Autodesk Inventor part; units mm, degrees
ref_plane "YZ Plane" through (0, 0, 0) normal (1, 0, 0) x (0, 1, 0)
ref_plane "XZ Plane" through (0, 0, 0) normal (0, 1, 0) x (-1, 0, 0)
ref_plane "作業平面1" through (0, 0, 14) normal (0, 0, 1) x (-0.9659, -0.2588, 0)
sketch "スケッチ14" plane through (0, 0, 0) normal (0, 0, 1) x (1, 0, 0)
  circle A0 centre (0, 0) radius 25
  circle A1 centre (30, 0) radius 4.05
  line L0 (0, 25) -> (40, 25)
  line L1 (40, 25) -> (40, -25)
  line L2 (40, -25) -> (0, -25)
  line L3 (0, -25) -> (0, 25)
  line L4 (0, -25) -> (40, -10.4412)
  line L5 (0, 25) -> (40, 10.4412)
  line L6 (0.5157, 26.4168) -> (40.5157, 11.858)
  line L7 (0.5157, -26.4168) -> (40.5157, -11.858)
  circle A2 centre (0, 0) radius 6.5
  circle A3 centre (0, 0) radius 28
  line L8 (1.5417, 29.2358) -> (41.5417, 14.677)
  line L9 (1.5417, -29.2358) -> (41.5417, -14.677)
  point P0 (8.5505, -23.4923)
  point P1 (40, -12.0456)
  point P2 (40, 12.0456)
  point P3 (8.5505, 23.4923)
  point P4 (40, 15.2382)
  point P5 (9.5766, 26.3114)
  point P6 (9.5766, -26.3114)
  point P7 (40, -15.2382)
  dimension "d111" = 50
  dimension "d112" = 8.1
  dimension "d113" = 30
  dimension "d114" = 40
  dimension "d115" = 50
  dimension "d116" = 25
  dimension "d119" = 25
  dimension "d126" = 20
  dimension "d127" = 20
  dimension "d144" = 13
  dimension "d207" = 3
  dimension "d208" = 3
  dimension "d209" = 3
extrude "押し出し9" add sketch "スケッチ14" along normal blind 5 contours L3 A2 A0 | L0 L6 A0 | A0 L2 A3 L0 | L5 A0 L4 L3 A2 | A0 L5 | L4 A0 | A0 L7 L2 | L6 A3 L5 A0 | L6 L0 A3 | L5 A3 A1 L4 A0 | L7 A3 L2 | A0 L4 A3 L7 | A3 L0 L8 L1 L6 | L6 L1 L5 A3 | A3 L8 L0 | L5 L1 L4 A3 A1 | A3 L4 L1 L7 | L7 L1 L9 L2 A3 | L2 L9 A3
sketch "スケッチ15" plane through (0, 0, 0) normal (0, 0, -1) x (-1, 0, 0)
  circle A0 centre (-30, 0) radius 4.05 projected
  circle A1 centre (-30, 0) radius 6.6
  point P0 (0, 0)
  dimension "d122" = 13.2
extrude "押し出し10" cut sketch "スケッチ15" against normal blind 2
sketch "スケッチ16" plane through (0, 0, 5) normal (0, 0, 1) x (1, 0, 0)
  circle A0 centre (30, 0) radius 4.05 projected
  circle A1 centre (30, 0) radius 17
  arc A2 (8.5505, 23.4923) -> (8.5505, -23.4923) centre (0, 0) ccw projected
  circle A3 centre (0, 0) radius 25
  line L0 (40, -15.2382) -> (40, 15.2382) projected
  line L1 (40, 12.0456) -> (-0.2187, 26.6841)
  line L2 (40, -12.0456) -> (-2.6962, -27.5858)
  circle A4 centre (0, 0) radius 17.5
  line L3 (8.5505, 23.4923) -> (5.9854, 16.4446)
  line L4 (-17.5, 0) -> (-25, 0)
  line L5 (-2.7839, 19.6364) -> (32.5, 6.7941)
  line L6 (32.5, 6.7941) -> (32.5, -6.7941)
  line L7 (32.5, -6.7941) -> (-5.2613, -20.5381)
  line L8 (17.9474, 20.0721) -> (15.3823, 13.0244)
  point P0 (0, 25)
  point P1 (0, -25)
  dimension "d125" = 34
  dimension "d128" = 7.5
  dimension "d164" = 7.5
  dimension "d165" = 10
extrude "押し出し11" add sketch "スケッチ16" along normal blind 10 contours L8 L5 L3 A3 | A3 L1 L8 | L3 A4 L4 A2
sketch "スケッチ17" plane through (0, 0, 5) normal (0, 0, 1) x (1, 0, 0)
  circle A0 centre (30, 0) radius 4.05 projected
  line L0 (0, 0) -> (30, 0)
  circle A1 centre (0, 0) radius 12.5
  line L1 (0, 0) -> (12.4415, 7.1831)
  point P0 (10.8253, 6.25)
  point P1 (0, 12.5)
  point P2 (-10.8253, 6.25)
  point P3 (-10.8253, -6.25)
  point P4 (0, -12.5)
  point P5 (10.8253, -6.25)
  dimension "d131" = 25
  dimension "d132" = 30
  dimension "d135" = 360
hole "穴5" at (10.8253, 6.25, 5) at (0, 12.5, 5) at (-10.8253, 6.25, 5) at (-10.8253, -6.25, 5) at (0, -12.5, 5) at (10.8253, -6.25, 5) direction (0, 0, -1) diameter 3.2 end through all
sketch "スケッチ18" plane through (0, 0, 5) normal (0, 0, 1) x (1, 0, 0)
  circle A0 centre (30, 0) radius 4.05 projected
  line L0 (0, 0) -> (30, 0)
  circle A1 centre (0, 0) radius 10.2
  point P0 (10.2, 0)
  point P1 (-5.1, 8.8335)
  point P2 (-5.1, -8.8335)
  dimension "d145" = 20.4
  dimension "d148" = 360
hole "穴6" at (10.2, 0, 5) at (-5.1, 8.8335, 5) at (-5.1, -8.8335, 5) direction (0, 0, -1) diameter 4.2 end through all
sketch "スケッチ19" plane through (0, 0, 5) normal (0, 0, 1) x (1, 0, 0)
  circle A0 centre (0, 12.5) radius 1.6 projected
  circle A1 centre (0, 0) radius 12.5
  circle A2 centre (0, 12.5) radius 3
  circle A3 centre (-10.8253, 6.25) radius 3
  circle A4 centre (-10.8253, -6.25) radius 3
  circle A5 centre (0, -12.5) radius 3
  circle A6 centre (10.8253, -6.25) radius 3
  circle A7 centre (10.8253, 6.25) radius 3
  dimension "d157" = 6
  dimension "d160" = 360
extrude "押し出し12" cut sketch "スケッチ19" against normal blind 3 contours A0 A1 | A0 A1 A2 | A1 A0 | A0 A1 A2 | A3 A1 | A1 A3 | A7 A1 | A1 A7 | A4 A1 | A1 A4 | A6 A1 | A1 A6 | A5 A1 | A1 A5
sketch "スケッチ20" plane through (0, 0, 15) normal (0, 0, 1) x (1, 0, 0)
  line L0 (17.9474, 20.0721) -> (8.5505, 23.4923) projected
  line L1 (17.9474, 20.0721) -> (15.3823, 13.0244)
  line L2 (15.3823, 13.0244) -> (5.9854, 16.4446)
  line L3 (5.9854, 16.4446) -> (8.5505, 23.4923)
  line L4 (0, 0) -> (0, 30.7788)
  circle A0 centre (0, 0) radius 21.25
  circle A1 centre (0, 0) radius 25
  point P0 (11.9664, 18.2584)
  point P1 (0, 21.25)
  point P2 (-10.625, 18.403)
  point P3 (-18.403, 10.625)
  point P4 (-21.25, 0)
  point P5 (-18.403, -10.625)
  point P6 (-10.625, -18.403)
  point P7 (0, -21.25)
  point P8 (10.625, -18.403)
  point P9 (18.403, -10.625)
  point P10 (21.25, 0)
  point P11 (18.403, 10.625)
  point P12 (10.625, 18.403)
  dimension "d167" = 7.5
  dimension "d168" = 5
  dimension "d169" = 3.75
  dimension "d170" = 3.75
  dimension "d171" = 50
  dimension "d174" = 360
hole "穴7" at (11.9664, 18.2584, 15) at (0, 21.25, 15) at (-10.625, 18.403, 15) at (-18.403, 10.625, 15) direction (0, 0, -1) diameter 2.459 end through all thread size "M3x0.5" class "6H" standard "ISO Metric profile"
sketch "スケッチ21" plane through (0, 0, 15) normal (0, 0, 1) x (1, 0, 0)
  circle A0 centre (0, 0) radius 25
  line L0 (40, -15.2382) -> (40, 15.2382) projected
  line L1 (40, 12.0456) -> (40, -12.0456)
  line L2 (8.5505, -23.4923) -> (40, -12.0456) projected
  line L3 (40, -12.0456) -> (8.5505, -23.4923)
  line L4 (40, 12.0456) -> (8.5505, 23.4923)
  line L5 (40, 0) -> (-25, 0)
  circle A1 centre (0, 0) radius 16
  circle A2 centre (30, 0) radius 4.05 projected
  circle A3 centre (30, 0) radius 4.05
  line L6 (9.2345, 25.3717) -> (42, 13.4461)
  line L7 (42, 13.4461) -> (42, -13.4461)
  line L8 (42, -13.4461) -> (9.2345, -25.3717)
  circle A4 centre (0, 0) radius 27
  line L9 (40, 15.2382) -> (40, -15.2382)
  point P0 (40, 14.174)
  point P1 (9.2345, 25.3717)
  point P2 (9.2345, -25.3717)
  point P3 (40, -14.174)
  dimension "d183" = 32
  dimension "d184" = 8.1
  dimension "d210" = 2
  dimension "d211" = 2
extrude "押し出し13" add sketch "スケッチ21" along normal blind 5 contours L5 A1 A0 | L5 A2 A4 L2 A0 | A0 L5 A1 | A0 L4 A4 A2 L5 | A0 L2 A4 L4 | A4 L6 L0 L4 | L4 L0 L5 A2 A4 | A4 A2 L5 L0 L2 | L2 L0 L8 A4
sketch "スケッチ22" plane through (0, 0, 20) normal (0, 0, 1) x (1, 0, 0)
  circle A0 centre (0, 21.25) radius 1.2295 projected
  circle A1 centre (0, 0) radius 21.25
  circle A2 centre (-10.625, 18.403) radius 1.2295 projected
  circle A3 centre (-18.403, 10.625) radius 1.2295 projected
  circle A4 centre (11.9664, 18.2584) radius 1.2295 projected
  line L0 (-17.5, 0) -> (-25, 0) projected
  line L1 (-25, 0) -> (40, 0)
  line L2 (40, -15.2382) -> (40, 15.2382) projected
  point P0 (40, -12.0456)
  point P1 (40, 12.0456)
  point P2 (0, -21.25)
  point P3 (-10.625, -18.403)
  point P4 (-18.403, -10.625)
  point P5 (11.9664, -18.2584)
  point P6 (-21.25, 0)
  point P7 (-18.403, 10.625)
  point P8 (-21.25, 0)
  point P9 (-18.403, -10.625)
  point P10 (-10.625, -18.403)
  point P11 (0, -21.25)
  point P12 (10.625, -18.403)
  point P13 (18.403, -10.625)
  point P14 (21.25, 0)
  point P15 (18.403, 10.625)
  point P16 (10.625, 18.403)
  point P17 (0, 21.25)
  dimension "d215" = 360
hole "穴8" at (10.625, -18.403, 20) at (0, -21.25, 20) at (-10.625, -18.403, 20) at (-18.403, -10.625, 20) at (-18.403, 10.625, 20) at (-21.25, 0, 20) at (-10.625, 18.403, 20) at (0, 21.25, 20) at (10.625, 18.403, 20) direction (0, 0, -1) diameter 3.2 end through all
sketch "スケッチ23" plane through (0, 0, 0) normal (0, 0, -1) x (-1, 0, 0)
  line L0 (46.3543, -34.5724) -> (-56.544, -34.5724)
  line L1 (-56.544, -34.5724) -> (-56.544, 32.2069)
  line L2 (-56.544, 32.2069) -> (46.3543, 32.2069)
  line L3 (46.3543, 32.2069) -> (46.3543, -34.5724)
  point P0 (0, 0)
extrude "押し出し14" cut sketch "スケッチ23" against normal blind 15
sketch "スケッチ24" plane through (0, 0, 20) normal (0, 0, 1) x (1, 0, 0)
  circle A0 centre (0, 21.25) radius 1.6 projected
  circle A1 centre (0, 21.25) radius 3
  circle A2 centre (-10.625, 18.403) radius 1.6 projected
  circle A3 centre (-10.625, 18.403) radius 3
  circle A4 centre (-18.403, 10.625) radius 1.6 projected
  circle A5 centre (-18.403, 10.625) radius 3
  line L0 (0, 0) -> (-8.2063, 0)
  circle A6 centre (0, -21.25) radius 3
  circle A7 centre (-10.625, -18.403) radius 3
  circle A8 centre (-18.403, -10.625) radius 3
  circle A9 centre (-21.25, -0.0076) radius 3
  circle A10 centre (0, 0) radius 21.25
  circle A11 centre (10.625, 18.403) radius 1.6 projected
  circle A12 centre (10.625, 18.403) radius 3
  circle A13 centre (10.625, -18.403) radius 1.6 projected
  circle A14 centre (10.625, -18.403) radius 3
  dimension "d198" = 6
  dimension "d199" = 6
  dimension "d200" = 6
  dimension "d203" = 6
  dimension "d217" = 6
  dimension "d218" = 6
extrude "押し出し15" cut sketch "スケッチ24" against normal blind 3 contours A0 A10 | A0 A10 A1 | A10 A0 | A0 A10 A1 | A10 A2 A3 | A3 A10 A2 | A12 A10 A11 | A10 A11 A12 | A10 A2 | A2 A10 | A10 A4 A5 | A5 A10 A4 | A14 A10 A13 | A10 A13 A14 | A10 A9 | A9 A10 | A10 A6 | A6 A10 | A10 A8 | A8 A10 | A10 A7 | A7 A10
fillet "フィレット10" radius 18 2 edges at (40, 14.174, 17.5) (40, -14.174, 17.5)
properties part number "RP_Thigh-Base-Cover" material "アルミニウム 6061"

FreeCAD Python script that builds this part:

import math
import FreeCAD as App
import Part
import Sketcher
from FreeCAD import Vector
Q = App.Units.Quantity


def edges_at(feature, points):
    """Names of the edges that pass closest to the given points."""
    edges = feature.Shape.Edges
    near = lambda p: min(range(len(edges)), key=lambda i: edges[i].distToShape(Part.Vertex(*p))[0])
    return sorted({f"Edge{near(p) + 1}" for p in points})


def add_polygon(sketch, points):
    """Adds a closed chain of lines whose ends are joined by coincident constraints."""
    first, n = sketch.GeometryCount, len(points)
    for a, b in zip(points, points[1:] + points[:1]):
        sketch.addGeometry(Part.LineSegment(App.Vector(*a, 0), App.Vector(*b, 0)), False)
    for i in range(n):
        sketch.addConstraint(Sketcher.Constraint("Coincident", first + i, 2, first + (i + 1) % n, 1))

doc = App.newDocument("Part")
body = doc.addObject("PartDesign::Body", "Body")

sketch1 = doc.addObject("Sketcher::SketchObject", "Sketch")
body.addObject(sketch1)
sketch1.AttachmentSupport = (doc.XY_Plane, [""])
sketch1.MapMode = "FlatFace"
sketch1.addGeometry([
    Part.ArcOfCircle(Part.Circle(Vector(0, 0, 0), Vector(0, 0, 1), 28), math.radians(70.000012), math.radians(289.999988)),
    Part.LineSegment(Vector(9.576552, -26.311376, 0), Vector(40, -15.238133, 0)),
    Part.LineSegment(Vector(40, -15.238133, 0), Vector(40, 15.238133, 0)),
    Part.LineSegment(Vector(40, 15.238133, 0), Vector(9.576552, 26.311376, 0)),
    Part.Circle(Vector(0, 0, 0), Vector(0, 0, 1), 6.5),
    Part.Circle(Vector(30, 0, 0), Vector(0, 0, 1), 4.05),
], False)
sketch1.addConstraint([
    Sketcher.Constraint("Tangent", 0, 2, 1, 1),
    Sketcher.Constraint("Coincident", 1, 2, 2, 1),
    Sketcher.Constraint("Coincident", 2, 2, 3, 1),
    Sketcher.Constraint("Tangent", 3, 2, 0, 1),
    Sketcher.Constraint("Vertical", 2),
    Sketcher.Constraint("Coincident", 0, 3, -1, 1),
    Sketcher.Constraint("Coincident", 4, 3, -1, 1),
    Sketcher.Constraint("PointOnObject", 5, 3, -1),
    Sketcher.Constraint("Vertical", 0, 2, 3, 2),
    Sketcher.Constraint("Diameter", 4, 13.0),
    Sketcher.Constraint("Diameter", 5, 8.1),
    Sketcher.Constraint("Angle", 1, Q("20 deg")),
    Sketcher.Constraint("DistanceX", -1, 1, 5, 3, 30.0),
    Sketcher.Constraint("DistanceX", -1, 1, 1, 2, 40.0),
    Sketcher.Constraint("Radius", 0, 28.0),
])
pad1 = doc.addObject("PartDesign::Pad", "Pad")
body.addObject(pad1)
pad1.Profile = sketch1
pad1.Length = 5

sketch2 = doc.addObject("Sketcher::SketchObject", "Sketch001")
body.addObject(sketch2)
sketch2.AttachmentSupport = (doc.XY_Plane, [""])
sketch2.MapMode = "FlatFace"
sketch2.addGeometry([
    Part.Circle(Vector(30, 0, 0), Vector(0, 0, 1), 6.6),
    Part.Circle(Vector(30, 0, 0), Vector(0, 0, 1), 4.05),
], False)
sketch2.addConstraint([
    Sketcher.Constraint("Coincident", 1, 3, 0, 3),
    Sketcher.Constraint("PointOnObject", 0, 3, -1),
    Sketcher.Constraint("Diameter", 0, 13.2),
    Sketcher.Constraint("Diameter", 1, 8.1),
    Sketcher.Constraint("DistanceX", -1, 1, 0, 3, 30.0),
])
pocket1 = doc.addObject("PartDesign::Pocket", "Pocket")
body.addObject(pocket1)
pocket1.Profile = sketch2
pocket1.Length = 2
pocket1.Reversed = True

sketch3 = doc.addObject("Sketcher::SketchObject", "Sketch002")
body.addObject(sketch3)
sketch3.AttachmentSupport = (doc.XY_Plane, [""])
sketch3.MapMode = "FlatFace"
sketch3.AttachmentOffset = App.Placement(Vector(0, 0, 5), App.Rotation())
sketch3.addGeometry([
    Part.LineSegment(Vector(15.3823, 13.0244, 0), Vector(17.9474, 20.0721, 0)),
    Part.LineSegment(Vector(17.947413, 20.072135, 0), Vector(8.550517, 23.492346, 0)),
    Part.ArcOfCircle(Part.Circle(Vector(0, 0, 0), Vector(0, 0, 1), 24.999984), math.radians(69.999996), math.radians(180)),
    Part.LineSegment(Vector(-25, 0, 0), Vector(-17.5, 0, 0)),
    Part.ArcOfCircle(Part.Circle(Vector(0, 0, 0), Vector(0, 0, 1), 17.5), math.radians(69.999831), math.radians(180)),
    Part.LineSegment(Vector(5.985411, 16.444629, 0), Vector(15.382312, 13.024434, 0)),
], False)
sketch3.addConstraint([
    Sketcher.Constraint("Coincident", 0, 2, 1, 1),
    Sketcher.Constraint("Tangent", 1, 2, 2, 1),
    Sketcher.Constraint("Coincident", 2, 2, 3, 1),
    Sketcher.Constraint("Coincident", 3, 2, 4, 2),
    Sketcher.Constraint("Tangent", 4, 1, 5, 1),
    Sketcher.Constraint("Coincident", 5, 2, 0, 1),
    Sketcher.Constraint("Horizontal", 3),
    Sketcher.Constraint("Coincident", 2, 3, -1, 1),
    Sketcher.Constraint("Coincident", 4, 3, -1, 1),
    Sketcher.Constraint("PointOnObject", 2, 2, -1),
    Sketcher.Constraint("Perpendicular", 0, 1),
    Sketcher.Constraint("Parallel", 1, 5),
    Sketcher.Constraint("Distance", 1, 10.0),
    Sketcher.Constraint("DistanceX", 3, 1, 3, 2, 7.5),
    Sketcher.Constraint("Radius", 2, 25.0),
    Sketcher.Constraint("Angle", 0, Q("70.0004 deg")),
])
pad2 = doc.addObject("PartDesign::Pad", "Pad001")
body.addObject(pad2)
pad2.Profile = sketch3
pad2.Length = 10

sketch4 = doc.addObject("Sketcher::SketchObject", "Sketch003")
body.addObject(sketch4)
sketch4.AttachmentSupport = (doc.XY_Plane, [""])
sketch4.MapMode = "FlatFace"
sketch4.AttachmentOffset = App.Placement(Vector(0, 0, 5), App.Rotation())
sketch4.addGeometry([
    Part.Circle(Vector(10.8253, 6.25, 0), Vector(0, 0, 1), 1.6),
    Part.Circle(Vector(0, 12.5, 0), Vector(0, 0, 1), 1.6),
    Part.Circle(Vector(-10.8253, 6.25, 0), Vector(0, 0, 1), 1.6),
    Part.Circle(Vector(-10.8253, -6.25, 0), Vector(0, 0, 1), 1.6),
    Part.Circle(Vector(0, -12.5, 0), Vector(0, 0, 1), 1.6),
    Part.Circle(Vector(10.8253, -6.25, 0), Vector(0, 0, 1), 1.6),
], False)
sketch4.addConstraint([
    Sketcher.Constraint("Equal", 0, 1),
    Sketcher.Constraint("Equal", 1, 2),
    Sketcher.Constraint("Equal", 2, 3),
    Sketcher.Constraint("Equal", 3, 4),
    Sketcher.Constraint("Equal", 4, 5),
    Sketcher.Constraint("Symmetric", 0, 3, 3, 3, -1, 1),
    Sketcher.Constraint("Symmetric", 1, 3, 4, 3, -1, 1),
    Sketcher.Constraint("Symmetric", 2, 3, 5, 3, -1, 1),
    Sketcher.Constraint("Symmetric", 0, 3, 2, 3, -2),
    Sketcher.Constraint("PointOnObject", 1, 3, -2),
    Sketcher.Constraint("Diameter", 0, 3.2),
    Sketcher.Constraint("DistanceY", 4, 3, 1, 3, 25.0),
    Sketcher.Constraint("DistanceY", 3, 3, 2, 3, 12.5),
    Sketcher.Constraint("DistanceX", -1, 1, 0, 3, 10.8253),
])
doc.recompute()
hole = doc.addObject("PartDesign::Hole", "Hole")
body.addObject(hole)
hole.Profile = sketch4
hole.ThreadType = "None"
hole.Diameter = 3.2
hole.DepthType = "ThroughAll"

sketch5 = doc.addObject("Sketcher::SketchObject", "Sketch004")
body.addObject(sketch5)
sketch5.AttachmentSupport = (doc.XY_Plane, [""])
sketch5.MapMode = "FlatFace"
sketch5.AttachmentOffset = App.Placement(Vector(0, 0, 5), App.Rotation())
sketch5.addGeometry([
    Part.Circle(Vector(10.2, 0, 0), Vector(0, 0, 1), 2.1),
    Part.Circle(Vector(-5.1, 8.8335, 0), Vector(0, 0, 1), 2.1),
    Part.Circle(Vector(-5.1, -8.8335, 0), Vector(0, 0, 1), 2.1),
], False)
sketch5.addConstraint([
    Sketcher.Constraint("Equal", 0, 1),
    Sketcher.Constraint("Equal", 1, 2),
    Sketcher.Constraint("Symmetric", 1, 3, 2, 3, -1),
    Sketcher.Constraint("PointOnObject", 0, 3, -1),
    Sketcher.Constraint("Diameter", 0, 4.2),
    Sketcher.Constraint("DistanceX", -1, 1, 0, 3, 10.2),
    Sketcher.Constraint("DistanceX", 1, 3, -1, 1, 5.1),
    Sketcher.Constraint("DistanceY", 2, 3, 1, 3, 17.667),
])
doc.recompute()
hole2 = doc.addObject("PartDesign::Hole", "Hole001")
body.addObject(hole2)
hole2.Profile = sketch5
hole2.ThreadType = "None"
hole2.Diameter = 4.2
hole2.DepthType = "ThroughAll"

sketch6 = doc.addObject("Sketcher::SketchObject", "Sketch005")
body.addObject(sketch6)
sketch6.AttachmentSupport = (doc.XY_Plane, [""])
sketch6.MapMode = "FlatFace"
sketch6.AttachmentOffset = App.Placement(Vector(0, 0, 5), App.Rotation())
sketch6.addGeometry([
    Part.Circle(Vector(0, 12.5, 0), Vector(0, 0, 1), 3),
    Part.Circle(Vector(-10.8253, 6.25, 0), Vector(0, 0, 1), 3),
    Part.Circle(Vector(10.8253, 6.25, 0), Vector(0, 0, 1), 3),
    Part.Circle(Vector(-10.8253, -6.25, 0), Vector(0, 0, 1), 3),
    Part.Circle(Vector(10.8253, -6.25, 0), Vector(0, 0, 1), 3),
    Part.Circle(Vector(0, -12.5, 0), Vector(0, 0, 1), 3),
], False)
sketch6.addConstraint([
    Sketcher.Constraint("Equal", 0, 1),
    Sketcher.Constraint("Equal", 1, 2),
    Sketcher.Constraint("Equal", 2, 3),
    Sketcher.Constraint("Equal", 3, 4),
    Sketcher.Constraint("Equal", 4, 5),
    Sketcher.Constraint("Symmetric", 2, 3, 3, 3, -1, 1),
    Sketcher.Constraint("Symmetric", 1, 3, 4, 3, -1, 1),
    Sketcher.Constraint("Symmetric", 0, 3, 5, 3, -1, 1),
    Sketcher.Constraint("Symmetric", 1, 3, 2, 3, -2),
    Sketcher.Constraint("PointOnObject", 0, 3, -2),
    Sketcher.Constraint("Diameter", 0, 6.0),
    Sketcher.Constraint("DistanceY", 5, 3, 0, 3, 25.0),
    Sketcher.Constraint("DistanceY", 3, 3, 1, 3, 12.5),
    Sketcher.Constraint("DistanceX", 1, 3, -1, 1, 10.8253),
])
pocket2 = doc.addObject("PartDesign::Pocket", "Pocket001")
body.addObject(pocket2)
pocket2.Profile = sketch6
pocket2.Length = 3

sketch7 = doc.addObject("Sketcher::SketchObject", "Sketch006")
body.addObject(sketch7)
sketch7.AttachmentSupport = (doc.XY_Plane, [""])
sketch7.MapMode = "FlatFace"
sketch7.AttachmentOffset = App.Placement(Vector(0, 0, 15), App.Rotation())
sketch7.addGeometry([
    Part.Circle(Vector(11.9664, 18.2584, 0), Vector(0, 0, 1), 1.2295),
    Part.Circle(Vector(0, 21.25, 0), Vector(0, 0, 1), 1.2295),
    Part.Circle(Vector(-10.625, 18.403, 0), Vector(0, 0, 1), 1.2295),
    Part.Circle(Vector(-18.403, 10.625, 0), Vector(0, 0, 1), 1.2295),
], False)
sketch7.addConstraint([
    Sketcher.Constraint("Equal", 0, 1),
    Sketcher.Constraint("Equal", 1, 2),
    Sketcher.Constraint("Equal", 2, 3),
    Sketcher.Constraint("PointOnObject", 1, 3, -2),
    Sketcher.Constraint("Diameter", 0, 2.459),
    Sketcher.Constraint("DistanceY", -1, 1, 1, 3, 21.25),
    Sketcher.Constraint("DistanceX", 2, 3, -1, 1, 10.625),
    Sketcher.Constraint("DistanceY", -1, 1, 2, 3, 18.403),
    Sketcher.Constraint("DistanceX", 3, 3, -1, 1, 18.403),
    Sketcher.Constraint("DistanceY", -1, 1, 3, 3, 10.625),
    Sketcher.Constraint("DistanceX", -1, 1, 0, 3, 11.9664),
    Sketcher.Constraint("DistanceY", -1, 1, 0, 3, 18.2584),
])
doc.recompute()
hole3 = doc.addObject("PartDesign::Hole", "Hole002")
body.addObject(hole3)
hole3.Profile = sketch7
hole3.ThreadType = "None"
hole3.Diameter = 2.459
hole3.DepthType = "ThroughAll"

sketch8 = doc.addObject("Sketcher::SketchObject", "Sketch007")
body.addObject(sketch8)
sketch8.AttachmentSupport = (doc.XY_Plane, [""])
sketch8.MapMode = "FlatFace"
sketch8.AttachmentOffset = App.Placement(Vector(0, 0, 15), App.Rotation())
sketch8.addGeometry([
    Part.ArcOfCircle(Part.Circle(Vector(0, 0, 0), Vector(0, 0, 1), 27), math.radians(70.000087), math.radians(289.999913)),
    Part.LineSegment(Vector(9.2345, -25.3717, 0), Vector(40, -14.174036, 0)),
    Part.LineSegment(Vector(40, -14.174036, 0), Vector(40, 14.174036, 0)),
    Part.LineSegment(Vector(40, 14.174036, 0), Vector(9.2345, 25.3717, 0)),
    Part.Circle(Vector(0, 0, 0), Vector(0, 0, 1), 16),
    Part.Circle(Vector(30, 0, 0), Vector(0, 0, 1), 4.05),
], False)
sketch8.addConstraint([
    Sketcher.Constraint("Tangent", 0, 2, 1, 1),
    Sketcher.Constraint("Coincident", 1, 2, 2, 1),
    Sketcher.Constraint("Coincident", 2, 2, 3, 1),
    Sketcher.Constraint("Tangent", 3, 2, 0, 1),
    Sketcher.Constraint("Vertical", 2),
    Sketcher.Constraint("Coincident", 0, 3, -1, 1),
    Sketcher.Constraint("Coincident", 4, 3, -1, 1),
    Sketcher.Constraint("PointOnObject", 5, 3, -1),
    Sketcher.Constraint("Vertical", 0, 2, 3, 2),
    Sketcher.Constraint("Diameter", 4, 32.0),
    Sketcher.Constraint("Diameter", 5, 8.1),
    Sketcher.Constraint("Radius", 0, 27.0),
    Sketcher.Constraint("Angle", 1, Q("20 deg")),
    Sketcher.Constraint("DistanceX", -1, 1, 5, 3, 30.0),
    Sketcher.Constraint("DistanceX", -1, 1, 1, 2, 40.0),
])
pad3 = doc.addObject("PartDesign::Pad", "Pad002")
body.addObject(pad3)
pad3.Profile = sketch8
pad3.Length = 5

sketch9 = doc.addObject("Sketcher::SketchObject", "Sketch008")
body.addObject(sketch9)
sketch9.AttachmentSupport = (doc.XY_Plane, [""])
sketch9.MapMode = "FlatFace"
sketch9.AttachmentOffset = App.Placement(Vector(0, 0, 20), App.Rotation())
sketch9.addGeometry([
    Part.Circle(Vector(10.625, -18.403, 0), Vector(0, 0, 1), 1.6),
    Part.Circle(Vector(0, -21.25, 0), Vector(0, 0, 1), 1.6),
    Part.Circle(Vector(-10.625, -18.403, 0), Vector(0, 0, 1), 1.6),
    Part.Circle(Vector(-18.403, -10.625, 0), Vector(0, 0, 1), 1.6),
    Part.Circle(Vector(-18.403, 10.625, 0), Vector(0, 0, 1), 1.6),
    Part.Circle(Vector(-21.25, 0, 0), Vector(0, 0, 1), 1.6),
    Part.Circle(Vector(-10.625, 18.403, 0), Vector(0, 0, 1), 1.6),
    Part.Circle(Vector(0, 21.25, 0), Vector(0, 0, 1), 1.6),
    Part.Circle(Vector(10.625, 18.403, 0), Vector(0, 0, 1), 1.6),
], False)
sketch9.addConstraint([
    Sketcher.Constraint("Equal", 0, 1),
    Sketcher.Constraint("Equal", 1, 2),
    Sketcher.Constraint("Equal", 2, 3),
    Sketcher.Constraint("Equal", 3, 4),
    Sketcher.Constraint("Equal", 4, 5),
    Sketcher.Constraint("Equal", 5, 6),
    Sketcher.Constraint("Equal", 6, 7),
    Sketcher.Constraint("Equal", 7, 8),
    Sketcher.Constraint("Symmetric", 0, 3, 6, 3, -1, 1),
    Sketcher.Constraint("Symmetric", 1, 3, 7, 3, -1, 1),
    Sketcher.Constraint("Symmetric", 2, 3, 8, 3, -1, 1),
    Sketcher.Constraint("Symmetric", 0, 3, 2, 3, -2),
    Sketcher.Constraint("Symmetric", 3, 3, 4, 3, -1),
    Sketcher.Constraint("PointOnObject", 1, 3, -2),
    Sketcher.Constraint("PointOnObject", 5, 3, -1),
    Sketcher.Constraint("Diameter", 0, 3.2),
    Sketcher.Constraint("DistanceY", 1, 3, -1, 1, 21.25),
    Sketcher.Constraint("DistanceX", 5, 3, -1, 1, 21.25),
    Sketcher.Constraint("DistanceX", 2, 3, 0, 3, 21.25),
    Sketcher.Constraint("DistanceY", 3, 3, 4, 3, 21.25),
    Sketcher.Constraint("DistanceY", 0, 3, -1, 1, 18.403),
    Sketcher.Constraint("DistanceX", 3, 3, -1, 1, 18.403),
])
doc.recompute()
hole4 = doc.addObject("PartDesign::Hole", "Hole003")
body.addObject(hole4)
hole4.Profile = sketch9
hole4.ThreadType = "None"
hole4.Diameter = 3.2
hole4.DepthType = "ThroughAll"

sketch10 = doc.addObject("Sketcher::SketchObject", "Sketch009")
body.addObject(sketch10)
sketch10.AttachmentSupport = (doc.XY_Plane, [""])
sketch10.MapMode = "FlatFace"
add_polygon(sketch10, [(56.544, -34.5724), (-46.3543, -34.5724), (-46.3543, 32.2069), (56.544, 32.2069)])
sketch10.addConstraint([
    Sketcher.Constraint("Horizontal", 0),
    Sketcher.Constraint("Vertical", 1),
    Sketcher.Constraint("Horizontal", 2),
    Sketcher.Constraint("Vertical", 3),
    Sketcher.Constraint("DistanceX", 0, 2, 0, 1, 102.8983),
    Sketcher.Constraint("DistanceY", 1, 1, 1, 2, 66.7793),
    Sketcher.Constraint("DistanceY", -1, 1, 1, 2, 32.207),
    Sketcher.Constraint("DistanceX", -1, 1, 2, 2, 56.544),
])
pocket3 = doc.addObject("PartDesign::Pocket", "Pocket002")
body.addObject(pocket3)
pocket3.Profile = sketch10
pocket3.Length = 15
pocket3.Reversed = True

sketch11 = doc.addObject("Sketcher::SketchObject", "Sketch010")
body.addObject(sketch11)
sketch11.AttachmentSupport = (doc.XY_Plane, [""])
sketch11.MapMode = "FlatFace"
sketch11.AttachmentOffset = App.Placement(Vector(0, 0, 20), App.Rotation())
sketch11.addGeometry([
    Part.Circle(Vector(0, 21.25, 0), Vector(0, 0, 1), 3),
    Part.Circle(Vector(-10.625, 18.403, 0), Vector(0, 0, 1), 3),
    Part.Circle(Vector(10.625, 18.403, 0), Vector(0, 0, 1), 3),
    Part.Circle(Vector(10.625, 18.403, 0), Vector(0, 0, 1), 1.6),
    Part.Circle(Vector(-18.403, 10.625, 0), Vector(0, 0, 1), 3),
    Part.Circle(Vector(-18.403, 10.625, 0), Vector(0, 0, 1), 1.6),
    Part.Circle(Vector(10.625, -18.403, 0), Vector(0, 0, 1), 3),
    Part.Circle(Vector(10.625, -18.403, 0), Vector(0, 0, 1), 1.6),
    Part.Circle(Vector(-21.25, -0.0076, 0), Vector(0, 0, 1), 3),
    Part.Circle(Vector(0, -21.25, 0), Vector(0, 0, 1), 3),
    Part.Circle(Vector(-18.403, -10.625, 0), Vector(0, 0, 1), 3),
    Part.Circle(Vector(-10.625, -18.403, 0), Vector(0, 0, 1), 3),
], False)
sketch11.addConstraint([
    Sketcher.Constraint("Coincident", 3, 3, 2, 3),
    Sketcher.Constraint("Coincident", 5, 3, 4, 3),
    Sketcher.Constraint("Coincident", 7, 3, 6, 3),
    Sketcher.Constraint("Equal", 0, 1),
    Sketcher.Constraint("Equal", 1, 2),
    Sketcher.Constraint("Equal", 2, 4),
    Sketcher.Constraint("Equal", 3, 5),
    Sketcher.Constraint("Equal", 4, 6),
    Sketcher.Constraint("Equal", 5, 7),
    Sketcher.Constraint("Equal", 6, 8),
    Sketcher.Constraint("Equal", 8, 9),
    Sketcher.Constraint("Equal", 9, 10),
    Sketcher.Constraint("Equal", 10, 11),
    Sketcher.Constraint("Symmetric", 1, 3, 6, 3, -1, 1),
    Sketcher.Constraint("Symmetric", 0, 3, 9, 3, -1, 1),
    Sketcher.Constraint("Symmetric", 2, 3, 11, 3, -1, 1),
    Sketcher.Constraint("Symmetric", 1, 3, 2, 3, -2),
    Sketcher.Constraint("Symmetric", 4, 3, 10, 3, -1),
    Sketcher.Constraint("PointOnObject", 0, 3, -2),
    Sketcher.Constraint("Diameter", 0, 6.0),
    Sketcher.Constraint("Diameter", 3, 3.2),
    Sketcher.Constraint("DistanceY", -1, 1, 0, 3, 21.25),
    Sketcher.Constraint("DistanceX", 8, 3, -1, 1, 21.25),
    Sketcher.Constraint("DistanceX", 1, 3, 2, 3, 21.25),
    Sketcher.Constraint("DistanceY", 10, 3, 4, 3, 21.25),
    Sketcher.Constraint("DistanceY", -1, 1, 1, 3, 18.403),
    Sketcher.Constraint("DistanceX", 4, 3, -1, 1, 18.403),
    Sketcher.Constraint("DistanceY", 8, 3, -1, 1, 0.0076),
])
pocket4 = doc.addObject("PartDesign::Pocket", "Pocket003")
body.addObject(pocket4)
pocket4.Profile = sketch11
pocket4.Length = 3
doc.recompute()

fillet = doc.addObject("PartDesign::Fillet", "Fillet")
body.addObject(fillet)
fillet.Base = (pocket4, edges_at(pocket4, [(40, 14.174, 17.5), (40, -14.174, 17.5)]))
fillet.Radius = 18

doc.recompute()
